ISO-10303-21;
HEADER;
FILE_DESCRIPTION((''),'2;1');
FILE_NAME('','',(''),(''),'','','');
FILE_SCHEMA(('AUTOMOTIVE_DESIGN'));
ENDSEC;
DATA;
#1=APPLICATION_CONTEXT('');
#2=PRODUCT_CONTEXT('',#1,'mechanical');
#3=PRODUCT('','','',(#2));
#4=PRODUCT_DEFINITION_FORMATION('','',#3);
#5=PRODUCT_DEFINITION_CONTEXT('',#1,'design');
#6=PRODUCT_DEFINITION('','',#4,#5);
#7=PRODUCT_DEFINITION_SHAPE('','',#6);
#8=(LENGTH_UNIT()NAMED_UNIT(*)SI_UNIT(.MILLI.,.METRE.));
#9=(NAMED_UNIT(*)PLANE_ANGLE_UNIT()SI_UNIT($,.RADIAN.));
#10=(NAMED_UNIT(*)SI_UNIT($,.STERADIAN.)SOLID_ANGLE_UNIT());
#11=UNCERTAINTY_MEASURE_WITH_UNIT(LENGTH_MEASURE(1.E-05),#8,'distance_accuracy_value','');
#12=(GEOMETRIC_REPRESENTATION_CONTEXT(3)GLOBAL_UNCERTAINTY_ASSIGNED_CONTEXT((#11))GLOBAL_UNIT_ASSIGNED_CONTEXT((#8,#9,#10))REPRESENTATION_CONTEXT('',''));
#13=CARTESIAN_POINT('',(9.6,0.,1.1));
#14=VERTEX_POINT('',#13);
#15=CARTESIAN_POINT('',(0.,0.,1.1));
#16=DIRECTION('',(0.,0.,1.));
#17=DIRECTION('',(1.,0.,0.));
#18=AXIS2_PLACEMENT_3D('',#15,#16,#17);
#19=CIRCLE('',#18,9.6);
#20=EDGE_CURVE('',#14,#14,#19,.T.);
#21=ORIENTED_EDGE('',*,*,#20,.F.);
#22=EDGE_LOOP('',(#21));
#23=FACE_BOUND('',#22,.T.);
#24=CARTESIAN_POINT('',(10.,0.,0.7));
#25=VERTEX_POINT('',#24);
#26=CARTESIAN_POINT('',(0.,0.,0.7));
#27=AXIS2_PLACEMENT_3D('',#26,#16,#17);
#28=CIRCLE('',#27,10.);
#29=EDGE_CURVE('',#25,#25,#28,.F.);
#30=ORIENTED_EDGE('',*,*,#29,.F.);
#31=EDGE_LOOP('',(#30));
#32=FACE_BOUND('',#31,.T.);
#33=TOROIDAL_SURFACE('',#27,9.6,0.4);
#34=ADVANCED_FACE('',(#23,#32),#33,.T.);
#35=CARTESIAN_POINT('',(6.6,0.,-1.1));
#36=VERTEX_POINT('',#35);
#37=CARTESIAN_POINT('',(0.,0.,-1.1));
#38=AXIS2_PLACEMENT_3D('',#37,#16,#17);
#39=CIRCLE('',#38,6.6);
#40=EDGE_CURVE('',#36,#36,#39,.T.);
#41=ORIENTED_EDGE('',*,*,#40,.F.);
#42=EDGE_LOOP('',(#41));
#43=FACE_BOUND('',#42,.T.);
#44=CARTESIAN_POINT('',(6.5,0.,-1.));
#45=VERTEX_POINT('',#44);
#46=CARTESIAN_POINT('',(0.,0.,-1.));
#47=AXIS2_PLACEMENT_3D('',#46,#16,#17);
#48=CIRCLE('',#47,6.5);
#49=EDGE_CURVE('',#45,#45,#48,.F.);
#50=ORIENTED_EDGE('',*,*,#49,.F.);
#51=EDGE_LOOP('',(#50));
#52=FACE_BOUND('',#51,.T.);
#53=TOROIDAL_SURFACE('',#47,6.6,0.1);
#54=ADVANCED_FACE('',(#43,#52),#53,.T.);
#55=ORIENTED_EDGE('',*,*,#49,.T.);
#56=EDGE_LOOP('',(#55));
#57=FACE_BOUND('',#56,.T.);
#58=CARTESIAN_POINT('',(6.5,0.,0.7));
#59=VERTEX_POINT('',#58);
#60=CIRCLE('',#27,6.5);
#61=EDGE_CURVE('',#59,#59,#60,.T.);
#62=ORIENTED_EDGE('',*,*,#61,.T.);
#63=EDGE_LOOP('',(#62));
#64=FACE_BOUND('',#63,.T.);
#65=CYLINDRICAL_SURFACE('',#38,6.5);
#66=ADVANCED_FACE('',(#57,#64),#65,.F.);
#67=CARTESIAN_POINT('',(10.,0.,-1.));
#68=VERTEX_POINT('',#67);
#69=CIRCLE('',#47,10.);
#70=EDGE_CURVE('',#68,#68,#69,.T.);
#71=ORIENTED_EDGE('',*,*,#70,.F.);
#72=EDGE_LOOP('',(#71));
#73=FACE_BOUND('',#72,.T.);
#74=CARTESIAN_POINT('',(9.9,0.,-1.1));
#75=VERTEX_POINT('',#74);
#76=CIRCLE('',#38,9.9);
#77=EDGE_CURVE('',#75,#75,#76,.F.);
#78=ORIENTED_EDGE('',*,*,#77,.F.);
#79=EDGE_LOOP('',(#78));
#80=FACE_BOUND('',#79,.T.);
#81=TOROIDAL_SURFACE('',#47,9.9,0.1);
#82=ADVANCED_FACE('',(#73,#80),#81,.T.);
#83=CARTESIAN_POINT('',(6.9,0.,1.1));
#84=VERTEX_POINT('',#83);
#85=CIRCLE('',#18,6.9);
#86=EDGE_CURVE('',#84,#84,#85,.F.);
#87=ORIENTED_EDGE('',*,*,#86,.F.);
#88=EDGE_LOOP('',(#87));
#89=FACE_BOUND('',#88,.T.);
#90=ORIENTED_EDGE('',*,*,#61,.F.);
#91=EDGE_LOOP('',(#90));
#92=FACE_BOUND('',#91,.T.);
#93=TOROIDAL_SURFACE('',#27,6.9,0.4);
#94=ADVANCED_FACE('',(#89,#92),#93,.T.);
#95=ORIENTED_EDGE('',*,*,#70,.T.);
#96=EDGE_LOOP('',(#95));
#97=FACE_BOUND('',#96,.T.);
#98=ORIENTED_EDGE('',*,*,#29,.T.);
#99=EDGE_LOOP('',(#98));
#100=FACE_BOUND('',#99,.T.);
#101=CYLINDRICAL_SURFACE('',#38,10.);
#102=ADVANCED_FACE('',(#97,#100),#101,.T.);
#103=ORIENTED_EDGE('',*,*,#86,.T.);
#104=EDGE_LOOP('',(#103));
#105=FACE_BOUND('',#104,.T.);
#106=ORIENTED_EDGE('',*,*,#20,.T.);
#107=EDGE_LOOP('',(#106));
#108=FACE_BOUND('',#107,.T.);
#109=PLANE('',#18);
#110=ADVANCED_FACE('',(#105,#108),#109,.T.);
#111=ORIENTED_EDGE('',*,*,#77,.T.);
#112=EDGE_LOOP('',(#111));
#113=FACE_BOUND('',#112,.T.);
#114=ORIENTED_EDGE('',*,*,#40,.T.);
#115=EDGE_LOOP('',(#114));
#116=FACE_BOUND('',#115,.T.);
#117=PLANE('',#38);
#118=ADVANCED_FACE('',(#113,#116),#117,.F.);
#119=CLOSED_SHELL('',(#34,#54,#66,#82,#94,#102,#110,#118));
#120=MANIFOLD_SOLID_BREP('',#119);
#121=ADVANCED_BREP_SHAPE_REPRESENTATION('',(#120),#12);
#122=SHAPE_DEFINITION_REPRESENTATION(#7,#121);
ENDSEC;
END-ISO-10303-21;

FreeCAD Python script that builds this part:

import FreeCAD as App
import Part
import Sketcher

V = App.Vector


def edges_at(feature, points):
    """Names of the edges that pass closest to the given points."""
    edges = feature.Shape.Edges
    near = lambda p: min(range(len(edges)), key=lambda i: edges[i].distToShape(Part.Vertex(*p))[0])
    return sorted({f"Edge{near(p) + 1}" for p in points})

doc = App.newDocument("Part")
body = doc.addObject("PartDesign::Body", "Body")

# Sketch on XY plane
sketch1 = body.newObject("Sketcher::SketchObject", "Sketch")
sketch1.AttachmentSupport = (doc.getObject("XY_Plane"), [""])
sketch1.MapMode = "FlatFace"
sketch1.addGeometry([
    Part.Circle(V(0, 0, 0), V(0, 0, 1), 10),
    Part.Circle(V(0, 0, 0), V(0, 0, 1), 6),
], False)
sketch1.addConstraint([
    Sketcher.Constraint("Coincident", 0, 3, -1, 1),
    Sketcher.Constraint("Coincident", 1, 3, -1, 1),
    Sketcher.Constraint("Diameter", 0, 20.0),
    Sketcher.Constraint("Diameter", 1, 13.0),
])
pad1 = body.newObject("PartDesign::Pad", "Pad")
pad1.Profile = sketch1
pad1.Type = "TwoLengths"
pad1.Length = 1.1
pad1.Length2 = 1.1
doc.recompute()

fillet = body.newObject("PartDesign::Fillet", "Fillet")
fillet.Base = (pad1, edges_at(pad1, [(-10, 0, 1.1), (-6.5, 0, 1.1)]))
fillet.Radius = 0.4
doc.recompute()

fillet2 = body.newObject("PartDesign::Fillet", "Fillet001")
fillet2.Base = (fillet, edges_at(fillet, [(-10, 0, -1.1), (-6.5, 0, -1.1)]))
fillet2.Radius = 0.1

doc.recompute()
